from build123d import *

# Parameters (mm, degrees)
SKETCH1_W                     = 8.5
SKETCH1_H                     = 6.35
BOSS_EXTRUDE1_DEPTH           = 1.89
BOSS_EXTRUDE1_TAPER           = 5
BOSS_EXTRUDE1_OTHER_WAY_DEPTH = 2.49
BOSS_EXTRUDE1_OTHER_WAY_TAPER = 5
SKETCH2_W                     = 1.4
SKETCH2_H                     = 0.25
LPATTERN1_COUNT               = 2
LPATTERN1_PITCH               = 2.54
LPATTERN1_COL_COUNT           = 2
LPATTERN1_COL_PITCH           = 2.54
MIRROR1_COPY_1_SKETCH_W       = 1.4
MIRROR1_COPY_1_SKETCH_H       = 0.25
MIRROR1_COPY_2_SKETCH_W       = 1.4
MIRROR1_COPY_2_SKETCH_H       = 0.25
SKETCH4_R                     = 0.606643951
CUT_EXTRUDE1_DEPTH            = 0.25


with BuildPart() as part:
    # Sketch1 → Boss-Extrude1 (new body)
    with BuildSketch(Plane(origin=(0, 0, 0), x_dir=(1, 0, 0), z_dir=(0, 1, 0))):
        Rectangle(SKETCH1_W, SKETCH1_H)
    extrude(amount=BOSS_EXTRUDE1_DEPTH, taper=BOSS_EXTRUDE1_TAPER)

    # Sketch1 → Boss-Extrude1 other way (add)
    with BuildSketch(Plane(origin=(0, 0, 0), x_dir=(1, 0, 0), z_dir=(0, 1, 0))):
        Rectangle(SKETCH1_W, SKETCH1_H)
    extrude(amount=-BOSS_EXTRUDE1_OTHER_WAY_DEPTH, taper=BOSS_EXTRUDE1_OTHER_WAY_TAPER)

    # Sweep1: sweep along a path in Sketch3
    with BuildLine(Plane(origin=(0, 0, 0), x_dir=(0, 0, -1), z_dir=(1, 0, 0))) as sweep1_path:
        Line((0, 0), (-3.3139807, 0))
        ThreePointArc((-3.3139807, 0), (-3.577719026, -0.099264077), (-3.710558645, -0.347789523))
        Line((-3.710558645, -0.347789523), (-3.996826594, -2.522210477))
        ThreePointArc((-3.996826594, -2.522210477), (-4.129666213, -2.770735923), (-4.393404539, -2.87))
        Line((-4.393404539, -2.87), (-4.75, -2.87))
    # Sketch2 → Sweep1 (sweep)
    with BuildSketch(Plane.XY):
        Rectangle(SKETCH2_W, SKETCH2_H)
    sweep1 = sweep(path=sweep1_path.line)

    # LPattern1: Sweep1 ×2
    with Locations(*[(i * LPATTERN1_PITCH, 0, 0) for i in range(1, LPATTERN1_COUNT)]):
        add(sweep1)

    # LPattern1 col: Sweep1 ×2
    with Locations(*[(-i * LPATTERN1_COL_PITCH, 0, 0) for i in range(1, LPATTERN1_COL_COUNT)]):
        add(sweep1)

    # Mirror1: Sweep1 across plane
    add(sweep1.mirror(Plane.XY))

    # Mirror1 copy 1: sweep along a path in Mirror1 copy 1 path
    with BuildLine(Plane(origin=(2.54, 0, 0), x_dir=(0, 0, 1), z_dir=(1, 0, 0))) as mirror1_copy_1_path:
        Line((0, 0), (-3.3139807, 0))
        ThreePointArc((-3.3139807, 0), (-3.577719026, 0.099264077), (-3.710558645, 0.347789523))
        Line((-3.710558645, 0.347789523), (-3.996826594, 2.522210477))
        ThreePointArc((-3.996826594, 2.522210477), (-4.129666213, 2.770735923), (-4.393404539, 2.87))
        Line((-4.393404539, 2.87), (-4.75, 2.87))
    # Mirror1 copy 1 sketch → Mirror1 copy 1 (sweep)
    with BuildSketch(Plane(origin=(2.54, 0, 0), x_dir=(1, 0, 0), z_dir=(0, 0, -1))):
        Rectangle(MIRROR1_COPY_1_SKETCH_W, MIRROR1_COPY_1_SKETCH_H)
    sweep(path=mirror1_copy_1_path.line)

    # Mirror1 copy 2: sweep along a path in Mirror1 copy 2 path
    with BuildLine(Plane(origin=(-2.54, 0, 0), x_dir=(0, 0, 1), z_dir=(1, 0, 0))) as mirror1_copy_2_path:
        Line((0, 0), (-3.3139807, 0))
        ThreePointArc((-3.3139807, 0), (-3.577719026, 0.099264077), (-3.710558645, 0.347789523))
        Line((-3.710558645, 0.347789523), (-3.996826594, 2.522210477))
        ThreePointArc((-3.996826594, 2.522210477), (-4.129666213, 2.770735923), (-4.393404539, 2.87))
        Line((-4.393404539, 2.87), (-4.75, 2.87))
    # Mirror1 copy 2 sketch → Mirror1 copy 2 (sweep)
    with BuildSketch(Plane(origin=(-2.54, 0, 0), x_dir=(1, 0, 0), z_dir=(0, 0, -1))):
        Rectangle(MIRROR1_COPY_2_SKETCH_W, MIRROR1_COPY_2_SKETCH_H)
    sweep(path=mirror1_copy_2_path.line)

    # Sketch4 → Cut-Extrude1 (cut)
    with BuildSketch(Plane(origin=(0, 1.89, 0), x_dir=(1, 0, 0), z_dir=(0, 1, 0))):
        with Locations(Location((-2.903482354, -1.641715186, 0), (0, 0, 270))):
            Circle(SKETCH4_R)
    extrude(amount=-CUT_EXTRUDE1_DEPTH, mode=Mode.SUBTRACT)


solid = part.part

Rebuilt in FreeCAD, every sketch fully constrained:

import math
import FreeCAD as App
import Part
import Sketcher

V = App.Vector
Q = App.Units.Quantity


def add_polygon(sketch, points):
    """Adds a closed chain of lines whose ends are joined by coincident constraints."""
    first, n = sketch.GeometryCount, len(points)
    for a, b in zip(points, points[1:] + points[:1]):
        sketch.addGeometry(Part.LineSegment(App.Vector(*a, 0), App.Vector(*b, 0)), False)
    for i in range(n):
        sketch.addConstraint(Sketcher.Constraint("Coincident", first + i, 2, first + (i + 1) % n, 1))

doc = App.newDocument("Part")
body = doc.addObject("PartDesign::Body", "Body")

sketch1 = body.newObject("Sketcher::SketchObject", "Sketch")
sketch1.AttachmentSupport = (doc.getObject("XZ_Plane"), [""])
sketch1.MapMode = "FlatFace"
add_polygon(sketch1, [(-4, -3), (-4, 3), (4, 3), (4, -3)])
sketch1.addConstraint([
    Sketcher.Constraint("Vertical", 0),
    Sketcher.Constraint("Horizontal", 1),
    Sketcher.Constraint("Vertical", 2),
    Sketcher.Constraint("Horizontal", 3),
    Sketcher.Constraint("Symmetric", 0, 2, 2, 2, -1, 1),
    Sketcher.Constraint("DistanceX", 1, 1, 1, 2, 8.5),
    Sketcher.Constraint("DistanceY", 0, 1, 0, 2, 6.35),
])
pad1 = body.newObject("PartDesign::Pad", "Pad")
pad1.Profile = sketch1
pad1.Length = 1.89
pad1.Reversed = True
pad1.TaperAngle = -5

sketch2 = body.newObject("Sketcher::SketchObject", "Sketch001")
sketch2.AttachmentSupport = (doc.getObject("XZ_Plane"), [""])
sketch2.MapMode = "FlatFace"
add_polygon(sketch2, [(-4, -3), (-4, 3), (4, 3), (4, -3)])
sketch2.addConstraint([
    Sketcher.Constraint("Vertical", 0),
    Sketcher.Constraint("Horizontal", 1),
    Sketcher.Constraint("Vertical", 2),
    Sketcher.Constraint("Horizontal", 3),
    Sketcher.Constraint("Symmetric", 0, 2, 2, 2, -1, 1),
    Sketcher.Constraint("DistanceX", 1, 1, 1, 2, 8.5),
    Sketcher.Constraint("DistanceY", 0, 1, 0, 2, 6.35),
])
pad2 = body.newObject("PartDesign::Pad", "Pad001")
pad2.Profile = sketch2
pad2.Length = 2.49
pad2.TaperAngle = -5

sketch3 = body.newObject("Sketcher::SketchObject", "Sketch002")
sketch3.AttachmentSupport = (doc.getObject("XY_Plane"), [""])
sketch3.MapMode = "FlatFace"
add_polygon(sketch3, [(-0.7, 0.12), (-0.7, -0.12), (0.7, -0.12), (0.7, 0.12)])
sketch3.addConstraint([
    Sketcher.Constraint("Vertical", 0),
    Sketcher.Constraint("Horizontal", 1),
    Sketcher.Constraint("Vertical", 2),
    Sketcher.Constraint("Horizontal", 3),
    Sketcher.Constraint("Symmetric", 0, 2, 2, 2, -1, 1),
    Sketcher.Constraint("DistanceX", 1, 1, 1, 2, 1.4),
    Sketcher.Constraint("DistanceY", 0, 2, 0, 1, 0.25),
])

sketch4 = body.newObject("Sketcher::SketchObject", "Sketch003")
sketch4.AttachmentSupport = (doc.getObject("YZ_Plane"), [""])
sketch4.MapMode = "FlatFace"
sketch4.addGeometry([
    Part.LineSegment(V(0, 0, 0), V(0, 3.31, 0)),
    Part.ArcOfCircle(Part.Circle(V(-0.4, 3.31, 0), V(0, 0, 1), 0.4), math.radians(0), math.radians(82)),
    Part.LineSegment(V(-0.35, 3.71, 0), V(-2.52, 4, 0)),
    Part.ArcOfCircle(Part.Circle(V(-2.47, 4.39, 0), V(0, 0, 1), 0.4), math.radians(180), math.radians(262)),
    Part.LineSegment(V(-2.87, 4.39, 0), V(-2.87, 4.75, 0)),
], False)
sketch4.addConstraint([
    Sketcher.Constraint("Tangent", 0, 2, 1, 1),
    Sketcher.Constraint("Tangent", 1, 2, 2, 1),
    Sketcher.Constraint("Tangent", 2, 2, 3, 2),
    Sketcher.Constraint("Tangent", 3, 1, 4, 1),
    Sketcher.Constraint("Vertical", 0),
    Sketcher.Constraint("Vertical", 4),
    Sketcher.Constraint("Coincident", 0, 1, -1, 1),
    Sketcher.Constraint("Equal", 1, 3),
    Sketcher.Constraint("Radius", 1, 0.4),
    Sketcher.Constraint("Angle", 2, Q("172.5 deg")),
    Sketcher.Constraint("DistanceX", 3, 3, -1, 1, 2.47),
    Sketcher.Constraint("DistanceY", -1, 1, 4, 2, 4.75),
    Sketcher.Constraint("DistanceY", 0, 1, 0, 2, 3.313981),
])
doc.recompute()

additivepipe = body.newObject("PartDesign::AdditivePipe", "AdditivePipe")
additivepipe.Profile = sketch3
additivepipe.Spine = (sketch4, ["Edge1", "Edge2", "Edge3", "Edge4", "Edge5"])
doc.recompute()

linearpattern = body.newObject("PartDesign::LinearPattern", "LinearPattern")
linearpattern.Originals = [additivepipe]
linearpattern.Direction = (doc.getObject("X_Axis"), [""])
linearpattern.Mode = "offset"
linearpattern.Offset = 2.54
linearpattern.Occurrences = 2
body.Tip = linearpattern
doc.recompute()

linearpattern2 = body.newObject("PartDesign::LinearPattern", "LinearPattern001")
linearpattern2.Originals = [additivepipe]
linearpattern2.Direction = (doc.getObject("X_Axis"), [""])
linearpattern2.Mode = "offset"
linearpattern2.Offset = 2.54
linearpattern2.Occurrences = 2
linearpattern2.Reversed = True
body.Tip = linearpattern2
doc.recompute()

mirrored = body.newObject("PartDesign::Mirrored", "Mirrored")
mirrored.Originals = [additivepipe]
mirrored.MirrorPlane = (doc.getObject("XY_Plane"), [""])
body.Tip = mirrored

sketch5 = body.newObject("Sketcher::SketchObject", "Sketch004")
sketch5.AttachmentSupport = (doc.getObject("XY_Plane"), [""])
sketch5.MapMode = "FlatFace"
add_polygon(sketch5, [(1.84, -0.12), (1.84, 0.12), (3.24, 0.12), (3.24, -0.12)])
sketch5.addConstraint([
    Sketcher.Constraint("Vertical", 0),
    Sketcher.Constraint("Horizontal", 1),
    Sketcher.Constraint("Vertical", 2),
    Sketcher.Constraint("Horizontal", 3),
    Sketcher.Constraint("DistanceX", 1, 1, 1, 2, 1.4),
    Sketcher.Constraint("DistanceY", 0, 1, 0, 2, 0.25),
    Sketcher.Constraint("DistanceX", -1, 1, 0, 2, 1.84),
    Sketcher.Constraint("DistanceY", -1, 1, 0, 2, 0.125),
])

sketch6 = body.newObject("Sketcher::SketchObject", "Sketch005")
sketch6.AttachmentSupport = (doc.getObject("YZ_Plane"), [""])
sketch6.MapMode = "FlatFace"
sketch6.AttachmentOffset = App.Placement(V(0, 0, 2.54), App.Rotation())
sketch6.addGeometry([
    Part.LineSegment(V(0, 0, 0), V(0, -3.31, 0)),
    Part.ArcOfCircle(Part.Circle(V(-0.4, -3.31, 0), V(0, 0, 1), 0.4), math.radians(-82), math.radians(0)),
    Part.LineSegment(V(-0.35, -3.71, 0), V(-2.52, -4, 0)),
    Part.ArcOfCircle(Part.Circle(V(-2.47, -4.39, 0), V(0, 0, 1), 0.4), math.radians(98), math.radians(180)),
    Part.LineSegment(V(-2.87, -4.39, 0), V(-2.87, -4.75, 0)),
], False)
sketch6.addConstraint([
    Sketcher.Constraint("Tangent", 0, 2, 1, 2),
    Sketcher.Constraint("Tangent", 1, 1, 2, 1),
    Sketcher.Constraint("Tangent", 2, 2, 3, 1),
    Sketcher.Constraint("Tangent", 3, 2, 4, 1),
    Sketcher.Constraint("Vertical", 0),
    Sketcher.Constraint("Vertical", 4),
    Sketcher.Constraint("Coincident", 0, 1, -1, 1),
    Sketcher.Constraint("Equal", 1, 3),
    Sketcher.Constraint("Radius", 1, 0.4),
    Sketcher.Constraint("Angle", 2, Q("-172.5 deg")),
    Sketcher.Constraint("DistanceX", 3, 3, -1, 1, 2.47),
    Sketcher.Constraint("DistanceY", 4, 2, -1, 1, 4.75),
    Sketcher.Constraint("DistanceY", 0, 2, 0, 1, 3.313981),
])
doc.recompute()

additivepipe2 = body.newObject("PartDesign::AdditivePipe", "AdditivePipe001")
additivepipe2.Profile = sketch5
additivepipe2.Spine = (sketch6, ["Edge1", "Edge2", "Edge3", "Edge4", "Edge5"])

sketch7 = body.newObject("Sketcher::SketchObject", "Sketch006")
sketch7.AttachmentSupport = (doc.getObject("XY_Plane"), [""])
sketch7.MapMode = "FlatFace"
add_polygon(sketch7, [(-3.24, -0.12), (-3.24, 0.12), (-1.84, 0.12), (-1.84, -0.12)])
sketch7.addConstraint([
    Sketcher.Constraint("Vertical", 0),
    Sketcher.Constraint("Horizontal", 1),
    Sketcher.Constraint("Vertical", 2),
    Sketcher.Constraint("Horizontal", 3),
    Sketcher.Constraint("DistanceX", 1, 1, 1, 2, 1.4),
    Sketcher.Constraint("DistanceY", 0, 1, 0, 2, 0.25),
    Sketcher.Constraint("DistanceX", 0, 2, -1, 1, 3.24),
    Sketcher.Constraint("DistanceY", -1, 1, 0, 2, 0.125),
])

sketch8 = body.newObject("Sketcher::SketchObject", "Sketch007")
sketch8.AttachmentSupport = (doc.getObject("YZ_Plane"), [""])
sketch8.MapMode = "FlatFace"
sketch8.AttachmentOffset = App.Placement(V(0, 0, -2.54), App.Rotation())
sketch8.addGeometry([
    Part.LineSegment(V(0, 0, 0), V(0, -3.31, 0)),
    Part.ArcOfCircle(Part.Circle(V(-0.4, -3.31, 0), V(0, 0, 1), 0.4), math.radians(-82), math.radians(0)),
    Part.LineSegment(V(-0.35, -3.71, 0), V(-2.52, -4, 0)),
    Part.ArcOfCircle(Part.Circle(V(-2.47, -4.39, 0), V(0, 0, 1), 0.4), math.radians(98), math.radians(180)),
    Part.LineSegment(V(-2.87, -4.39, 0), V(-2.87, -4.75, 0)),
], False)
sketch8.addConstraint([
    Sketcher.Constraint("Tangent", 0, 2, 1, 2),
    Sketcher.Constraint("Tangent", 1, 1, 2, 1),
    Sketcher.Constraint("Tangent", 2, 2, 3, 1),
    Sketcher.Constraint("Tangent", 3, 2, 4, 1),
    Sketcher.Constraint("Vertical", 0),
    Sketcher.Constraint("Vertical", 4),
    Sketcher.Constraint("Coincident", 0, 1, -1, 1),
    Sketcher.Constraint("Equal", 1, 3),
    Sketcher.Constraint("Radius", 1, 0.4),
    Sketcher.Constraint("Angle", 2, Q("-172.5 deg")),
    Sketcher.Constraint("DistanceX", 3, 3, -1, 1, 2.47),
    Sketcher.Constraint("DistanceY", 4, 2, -1, 1, 4.75),
    Sketcher.Constraint("DistanceY", 0, 2, 0, 1, 3.313981),
])
doc.recompute()

additivepipe3 = body.newObject("PartDesign::AdditivePipe", "AdditivePipe002")
additivepipe3.Profile = sketch7
additivepipe3.Spine = (sketch8, ["Edge1", "Edge2", "Edge3", "Edge4", "Edge5"])

sketch9 = body.newObject("Sketcher::SketchObject", "Sketch008")
sketch9.AttachmentSupport = (doc.getObject("XZ_Plane"), [""])
sketch9.MapMode = "FlatFace"
sketch9.AttachmentOffset = App.Placement(V(0, 0, -1.89), App.Rotation())
sketch9.addGeometry(Part.Circle(V(-2.9, 1.6, 0), V(0, 0, 1), 0.6), False)
sketch9.addConstraint([
    Sketcher.Constraint("Diameter", 0, 1.213288),
    Sketcher.Constraint("DistanceX", 0, 3, -1, 1, 2.903482),
    Sketcher.Constraint("DistanceY", -1, 1, 0, 3, 1.641715),
])
pocket1 = body.newObject("PartDesign::Pocket", "Pocket")
pocket1.Profile = sketch9
pocket1.Length = 0.25
pocket1.Reversed = True

doc.recompute()
